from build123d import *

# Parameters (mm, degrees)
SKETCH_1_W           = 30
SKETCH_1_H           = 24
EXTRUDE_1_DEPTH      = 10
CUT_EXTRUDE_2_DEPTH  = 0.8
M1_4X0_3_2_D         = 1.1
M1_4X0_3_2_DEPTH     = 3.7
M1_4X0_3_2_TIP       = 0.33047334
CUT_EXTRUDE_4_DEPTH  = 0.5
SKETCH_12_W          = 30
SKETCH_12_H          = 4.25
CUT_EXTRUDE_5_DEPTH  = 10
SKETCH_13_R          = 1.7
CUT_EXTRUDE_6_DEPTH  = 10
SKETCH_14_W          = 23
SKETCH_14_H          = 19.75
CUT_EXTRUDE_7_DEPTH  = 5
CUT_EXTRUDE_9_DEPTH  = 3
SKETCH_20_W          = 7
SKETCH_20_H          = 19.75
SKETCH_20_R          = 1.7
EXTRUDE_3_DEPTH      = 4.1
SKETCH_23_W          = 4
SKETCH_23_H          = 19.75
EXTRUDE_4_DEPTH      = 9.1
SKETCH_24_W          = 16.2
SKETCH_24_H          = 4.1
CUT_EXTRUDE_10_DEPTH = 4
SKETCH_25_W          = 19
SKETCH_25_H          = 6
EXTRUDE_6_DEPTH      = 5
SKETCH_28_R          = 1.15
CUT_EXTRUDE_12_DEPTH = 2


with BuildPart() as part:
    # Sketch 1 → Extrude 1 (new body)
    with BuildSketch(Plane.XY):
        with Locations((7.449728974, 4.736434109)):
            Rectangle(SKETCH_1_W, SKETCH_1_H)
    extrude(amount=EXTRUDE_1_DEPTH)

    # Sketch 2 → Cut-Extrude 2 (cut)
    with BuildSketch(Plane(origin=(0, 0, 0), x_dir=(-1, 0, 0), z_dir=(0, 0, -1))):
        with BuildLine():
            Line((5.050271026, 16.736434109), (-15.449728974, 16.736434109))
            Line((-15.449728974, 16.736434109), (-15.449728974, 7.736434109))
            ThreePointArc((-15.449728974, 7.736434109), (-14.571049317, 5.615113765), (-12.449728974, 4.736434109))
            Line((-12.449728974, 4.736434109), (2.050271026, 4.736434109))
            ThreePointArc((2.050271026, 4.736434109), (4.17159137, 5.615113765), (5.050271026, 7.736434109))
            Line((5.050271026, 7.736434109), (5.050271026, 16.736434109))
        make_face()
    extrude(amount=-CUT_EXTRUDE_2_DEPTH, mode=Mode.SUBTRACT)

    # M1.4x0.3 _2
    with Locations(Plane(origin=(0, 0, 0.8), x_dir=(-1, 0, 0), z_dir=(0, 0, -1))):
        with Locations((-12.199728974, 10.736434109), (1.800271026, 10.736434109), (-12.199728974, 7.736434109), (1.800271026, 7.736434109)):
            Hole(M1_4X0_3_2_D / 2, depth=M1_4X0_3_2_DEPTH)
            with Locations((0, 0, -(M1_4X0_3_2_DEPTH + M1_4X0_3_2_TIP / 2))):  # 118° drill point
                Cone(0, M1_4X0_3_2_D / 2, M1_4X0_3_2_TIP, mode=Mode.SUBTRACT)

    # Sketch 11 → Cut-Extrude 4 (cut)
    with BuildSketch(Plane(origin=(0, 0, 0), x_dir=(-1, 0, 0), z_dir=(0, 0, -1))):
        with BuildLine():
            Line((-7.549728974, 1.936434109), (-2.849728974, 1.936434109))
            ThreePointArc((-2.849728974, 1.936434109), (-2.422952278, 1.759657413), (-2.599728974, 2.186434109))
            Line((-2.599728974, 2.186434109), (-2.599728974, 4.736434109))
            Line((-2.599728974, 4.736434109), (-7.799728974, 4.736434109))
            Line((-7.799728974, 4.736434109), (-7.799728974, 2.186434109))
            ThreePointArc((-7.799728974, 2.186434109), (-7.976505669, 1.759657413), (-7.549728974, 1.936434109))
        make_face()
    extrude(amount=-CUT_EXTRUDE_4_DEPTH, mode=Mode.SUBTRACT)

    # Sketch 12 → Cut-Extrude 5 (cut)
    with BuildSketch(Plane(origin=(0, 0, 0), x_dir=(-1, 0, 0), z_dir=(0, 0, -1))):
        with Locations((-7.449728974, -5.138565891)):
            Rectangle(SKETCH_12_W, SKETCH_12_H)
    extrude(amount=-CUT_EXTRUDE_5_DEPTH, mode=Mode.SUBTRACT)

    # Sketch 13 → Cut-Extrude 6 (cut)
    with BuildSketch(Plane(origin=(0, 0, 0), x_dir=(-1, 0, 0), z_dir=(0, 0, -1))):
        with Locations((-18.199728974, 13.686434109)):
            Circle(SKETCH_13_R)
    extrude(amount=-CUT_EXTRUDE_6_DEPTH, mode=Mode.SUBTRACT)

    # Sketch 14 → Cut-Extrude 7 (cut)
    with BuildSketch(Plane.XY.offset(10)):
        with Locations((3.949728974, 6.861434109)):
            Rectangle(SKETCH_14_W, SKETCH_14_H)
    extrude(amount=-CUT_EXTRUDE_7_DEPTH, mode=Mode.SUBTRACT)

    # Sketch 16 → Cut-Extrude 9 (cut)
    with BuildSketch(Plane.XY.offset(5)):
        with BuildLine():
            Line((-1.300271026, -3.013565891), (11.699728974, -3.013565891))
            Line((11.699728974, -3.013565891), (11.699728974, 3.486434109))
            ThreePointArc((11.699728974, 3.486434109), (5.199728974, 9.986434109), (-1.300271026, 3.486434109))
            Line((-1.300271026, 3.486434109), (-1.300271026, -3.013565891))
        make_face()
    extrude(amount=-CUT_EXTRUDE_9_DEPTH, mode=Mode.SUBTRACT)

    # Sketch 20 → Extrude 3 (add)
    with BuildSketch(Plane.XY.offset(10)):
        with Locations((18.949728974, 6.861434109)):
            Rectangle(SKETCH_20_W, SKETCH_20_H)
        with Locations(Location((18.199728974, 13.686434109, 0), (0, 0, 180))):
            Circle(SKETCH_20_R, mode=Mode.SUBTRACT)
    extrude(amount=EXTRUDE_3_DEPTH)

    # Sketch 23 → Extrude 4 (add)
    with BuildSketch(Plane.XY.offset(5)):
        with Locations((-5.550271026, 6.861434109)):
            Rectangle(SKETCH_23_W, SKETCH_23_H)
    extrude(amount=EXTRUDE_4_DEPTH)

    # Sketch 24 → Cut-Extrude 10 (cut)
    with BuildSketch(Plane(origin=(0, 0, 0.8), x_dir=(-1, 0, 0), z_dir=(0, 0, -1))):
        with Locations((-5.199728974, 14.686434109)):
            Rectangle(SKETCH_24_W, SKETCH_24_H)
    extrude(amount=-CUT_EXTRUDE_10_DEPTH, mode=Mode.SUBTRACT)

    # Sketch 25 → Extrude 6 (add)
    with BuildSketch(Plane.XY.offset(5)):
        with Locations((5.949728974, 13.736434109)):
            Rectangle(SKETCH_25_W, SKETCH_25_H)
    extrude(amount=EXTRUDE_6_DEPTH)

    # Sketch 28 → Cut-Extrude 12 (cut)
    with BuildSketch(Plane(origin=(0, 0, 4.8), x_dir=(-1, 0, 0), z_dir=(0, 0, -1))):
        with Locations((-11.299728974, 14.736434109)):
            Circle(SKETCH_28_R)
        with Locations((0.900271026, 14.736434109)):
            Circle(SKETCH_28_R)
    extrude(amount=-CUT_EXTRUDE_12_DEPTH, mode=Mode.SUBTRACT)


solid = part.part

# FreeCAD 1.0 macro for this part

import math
import FreeCAD as App
import Part
import Sketcher
from FreeCAD import Vector


def add_polygon(sketch, points):
    """Adds a closed chain of lines whose ends are joined by coincident constraints."""
    first, n = sketch.GeometryCount, len(points)
    for a, b in zip(points, points[1:] + points[:1]):
        sketch.addGeometry(Part.LineSegment(App.Vector(*a, 0), App.Vector(*b, 0)), False)
    for i in range(n):
        sketch.addConstraint(Sketcher.Constraint("Coincident", first + i, 2, first + (i + 1) % n, 1))

doc = App.newDocument("Part")
params = doc.addObject("Spreadsheet::Sheet", "Params")
for row, (alias, value) in enumerate([
    ("sketch1_width", "30 mm"),
    ("sketch1_height", "24 mm"),
    ("pad1_length", "10 mm"),
    ("sketch2_radius", "3 mm"),
    ("sketch2_height", "9 mm"),
    ("sketch2_width", "20.5 mm"),
    ("pocket1_length", "0.8 mm"),
    ("sketch3_diameter", "1.1 mm"),
    ("hole_diameter", "1.1 mm"),
    ("hole_depth", "3.7 mm"),
    ("sketch4_radius", "0.25 mm"),
    ("sketch4_width", "4.7 mm"),
    ("sketch4_width2", "5.2 mm"),
    ("sketch4_height", "2.55 mm"),
    ("pocket2_length", "0.5 mm"),
    ("sketch5_width", "30 mm"),
    ("sketch5_height", "4.25 mm"),
    ("pocket3_length", "10 mm"),
    ("sketch6_diameter", "3.4 mm"),
    ("pocket4_length", "10 mm"),
    ("sketch7_width", "23 mm"),
    ("sketch7_height", "19.75 mm"),
    ("pocket5_length", "5 mm"),
    ("sketch8_radius", "6.5 mm"),
    ("sketch8_height", "6.5 mm"),
    ("pocket6_length", "3 mm"),
    ("sketch9_diameter", "3.4 mm"),
    ("sketch9_width", "7 mm"),
    ("sketch9_height", "19.75 mm"),
    ("pad2_length", "4.1 mm"),
    ("sketch10_width", "4 mm"),
    ("sketch10_height", "19.75 mm"),
    ("pad3_length", "9.1 mm"),
    ("sketch11_width", "16.2 mm"),
    ("sketch11_height", "4.1 mm"),
    ("pocket7_length", "4 mm"),
    ("sketch12_width", "19 mm"),
    ("sketch12_height", "6 mm"),
    ("pad4_length", "5 mm"),
    ("sketch13_diameter", "2.3 mm"),
    ("pocket8_length", "2 mm"),
], start=1):
    params.set(f"A{row}", alias)
    params.set(f"B{row}", "=" + value)
    params.setAlias(f"B{row}", alias)

body = doc.addObject("PartDesign::Body", "Body")

sketch1 = body.newObject("Sketcher::SketchObject", "Sketch")
sketch1.AttachmentSupport = (doc.getObject("XY_Plane"), [""])
sketch1.MapMode = "FlatFace"
add_polygon(sketch1, [(-8, 17), (-8, -7), (22, -7), (22, 17)])
sketch1.addConstraint([
    Sketcher.Constraint("Vertical", 0),
    Sketcher.Constraint("Horizontal", 1),
    Sketcher.Constraint("Vertical", 2),
    Sketcher.Constraint("Horizontal", 3),
    Sketcher.Constraint("DistanceX", 1, 1, 1, 2, 30.0),
    Sketcher.Constraint("DistanceY", 0, 2, 0, 1, 24.0),
    Sketcher.Constraint("DistanceX", 0, 2, -1, 1, 7.550271),
    Sketcher.Constraint("DistanceY", 0, 2, -1, 1, 7.263566),
])
sketch1.setExpression("Constraints[8]", "Params.sketch1_width")
sketch1.setExpression("Constraints[9]", "Params.sketch1_height")
pad1 = body.newObject("PartDesign::Pad", "Pad")
pad1.Profile = sketch1
pad1.setExpression("Length", "Params.pad1_length")

sketch2 = body.newObject("Sketcher::SketchObject", "Sketch001")
sketch2.AttachmentSupport = (doc.getObject("XY_Plane"), [""])
sketch2.MapMode = "FlatFace"
sketch2.addGeometry([
    Part.LineSegment(Vector(-5.1, 16.7, 0), Vector(15.4, 16.7, 0)),
    Part.LineSegment(Vector(15.4, 16.7, 0), Vector(15.4, 7.7, 0)),
    Part.ArcOfCircle(Part.Circle(Vector(12.4, 7.7, 0), Vector(0, 0, 1), 3), math.radians(-90), math.radians(0)),
    Part.LineSegment(Vector(12.4, 4.7, 0), Vector(-2.1, 4.7, 0)),
    Part.ArcOfCircle(Part.Circle(Vector(-2.1, 7.7, 0), Vector(0, 0, 1), 3), math.radians(180), math.radians(270)),
    Part.LineSegment(Vector(-5.1, 7.7, 0), Vector(-5.1, 16.7, 0)),
], False)
sketch2.addConstraint([
    Sketcher.Constraint("Coincident", 0, 2, 1, 1),
    Sketcher.Constraint("Tangent", 1, 2, 2, 2),
    Sketcher.Constraint("Tangent", 2, 1, 3, 1),
    Sketcher.Constraint("Tangent", 3, 2, 4, 2),
    Sketcher.Constraint("Tangent", 4, 1, 5, 1),
    Sketcher.Constraint("Coincident", 5, 2, 0, 1),
    Sketcher.Constraint("Horizontal", 0),
    Sketcher.Constraint("Vertical", 1),
    Sketcher.Constraint("Horizontal", 3),
    Sketcher.Constraint("Vertical", 5),
    Sketcher.Constraint("Equal", 2, 4),
    Sketcher.Constraint("Radius", 2, 3.0),
    Sketcher.Constraint("DistanceY", 1, 2, 1, 1, 9.0),
    Sketcher.Constraint("DistanceX", 0, 1, 0, 2, 20.5),
    Sketcher.Constraint("DistanceX", -1, 1, 2, 3, 12.449729),
    Sketcher.Constraint("DistanceY", -1, 1, 2, 3, 7.736434),
])
sketch2.setExpression("Constraints[11]", "Params.sketch2_radius")
sketch2.setExpression("Constraints[12]", "Params.sketch2_height")
sketch2.setExpression("Constraints[13]", "Params.sketch2_width")
pocket1 = body.newObject("PartDesign::Pocket", "Pocket")
pocket1.Profile = sketch2
pocket1.setExpression("Length", "Params.pocket1_length")
pocket1.Reversed = True

sketch3 = body.newObject("Sketcher::SketchObject", "Sketch002")
sketch3.AttachmentSupport = (doc.getObject("XY_Plane"), [""])
sketch3.MapMode = "FlatFace"
sketch3.AttachmentOffset = App.Placement(Vector(0, 0, 0.8), App.Rotation())
sketch3.addGeometry([
    Part.Circle(Vector(12.2, 10.7, 0), Vector(0, 0, 1), 0.6),
    Part.Circle(Vector(-1.8, 10.7, 0), Vector(0, 0, 1), 0.6),
    Part.Circle(Vector(12.2, 7.7, 0), Vector(0, 0, 1), 0.6),
    Part.Circle(Vector(-1.8, 7.7, 0), Vector(0, 0, 1), 0.6),
], False)
sketch3.addConstraint([
    Sketcher.Constraint("Equal", 0, 1),
    Sketcher.Constraint("Equal", 1, 2),
    Sketcher.Constraint("Equal", 2, 3),
    Sketcher.Constraint("Horizontal", 0, 3, 1, 3),
    Sketcher.Constraint("Horizontal", 2, 3, 3, 3),
    Sketcher.Constraint("Vertical", 0, 3, 2, 3),
    Sketcher.Constraint("Vertical", 1, 3, 3, 3),
    Sketcher.Constraint("Diameter", 0, 1.1),
    Sketcher.Constraint("DistanceX", 1, 3, 0, 3, 14.0),
    Sketcher.Constraint("DistanceY", 2, 3, 0, 3, 3.0),
    Sketcher.Constraint("DistanceX", -1, 1, 0, 3, 12.199729),
    Sketcher.Constraint("DistanceY", -1, 1, 0, 3, 10.736434),
])
sketch3.setExpression("Constraints[7]", "Params.sketch3_diameter")
doc.recompute()
hole = body.newObject("PartDesign::Hole", "Hole")
hole.Profile = sketch3
hole.ThreadType = "None"
hole.setExpression("Diameter", "Params.hole_diameter")
hole.DepthType = "Dimension"
hole.setExpression("Depth", "Params.hole_depth")
hole.DrillPoint = "Angled"
hole.DrillPointAngle = 118
hole.Reversed = True

sketch4 = body.newObject("Sketcher::SketchObject", "Sketch003")
sketch4.AttachmentSupport = (doc.getObject("XY_Plane"), [""])
sketch4.MapMode = "FlatFace"
sketch4.addGeometry([
    Part.LineSegment(Vector(7.55, 1.94, 0), Vector(2.85, 1.94, 0)),
    Part.ArcOfCircle(Part.Circle(Vector(2.6, 1.94, 0), Vector(0, 0, 1), 0.25), math.radians(90), math.radians(360)),
    Part.LineSegment(Vector(2.6, 2.19, 0), Vector(2.6, 4.74, 0)),
    Part.LineSegment(Vector(2.6, 4.74, 0), Vector(7.8, 4.74, 0)),
    Part.LineSegment(Vector(7.8, 4.74, 0), Vector(7.8, 2.19, 0)),
    Part.ArcOfCircle(Part.Circle(Vector(7.8, 1.94, 0), Vector(0, 0, 1), 0.25), math.radians(180), math.radians(450)),
], False)
sketch4.addConstraint([
    Sketcher.Constraint("Coincident", 0, 2, 1, 2),
    Sketcher.Constraint("Coincident", 1, 1, 2, 1),
    Sketcher.Constraint("Coincident", 2, 2, 3, 1),
    Sketcher.Constraint("Coincident", 3, 2, 4, 1),
    Sketcher.Constraint("Coincident", 4, 2, 5, 2),
    Sketcher.Constraint("Coincident", 5, 1, 0, 1),
    Sketcher.Constraint("Horizontal", 0),
    Sketcher.Constraint("Vertical", 2),
    Sketcher.Constraint("Horizontal", 3),
    Sketcher.Constraint("Vertical", 4),
    Sketcher.Constraint("Equal", 1, 5),
    Sketcher.Constraint("Horizontal", 1, 3, 5, 3),
    Sketcher.Constraint("Horizontal", 5, 3, 0, 2),
    Sketcher.Constraint("Vertical", 5, 3, 3, 2),
    Sketcher.Constraint("Radius", 1, 0.25),
    Sketcher.Constraint("DistanceX", 0, 2, 0, 1, 4.7),
    Sketcher.Constraint("DistanceX", 3, 1, 3, 2, 5.2),
    Sketcher.Constraint("DistanceY", 2, 1, 2, 2, 2.55),
    Sketcher.Constraint("DistanceX", -1, 1, 1, 3, 2.599729),
    Sketcher.Constraint("DistanceY", -1, 1, 1, 3, 1.936434),
])
sketch4.setExpression("Constraints[14]", "Params.sketch4_radius")
sketch4.setExpression("Constraints[15]", "Params.sketch4_width")
sketch4.setExpression("Constraints[16]", "Params.sketch4_width2")
sketch4.setExpression("Constraints[17]", "Params.sketch4_height")
pocket2 = body.newObject("PartDesign::Pocket", "Pocket001")
pocket2.Profile = sketch4
pocket2.setExpression("Length", "Params.pocket2_length")
pocket2.Reversed = True

sketch5 = body.newObject("Sketcher::SketchObject", "Sketch004")
sketch5.AttachmentSupport = (doc.getObject("XY_Plane"), [""])
sketch5.MapMode = "FlatFace"
add_polygon(sketch5, [(22.4, -3), (22.4, -7.3), (-7.6, -7.3), (-7.6, -3)])
sketch5.addConstraint([
    Sketcher.Constraint("Vertical", 0),
    Sketcher.Constraint("Horizontal", 1),
    Sketcher.Constraint("Vertical", 2),
    Sketcher.Constraint("Horizontal", 3),
    Sketcher.Constraint("DistanceX", 1, 2, 1, 1, 30.0),
    Sketcher.Constraint("DistanceY", 0, 2, 0, 1, 4.25),
    Sketcher.Constraint("DistanceX", -1, 1, 0, 2, 22.449729),
    Sketcher.Constraint("DistanceY", 0, 2, -1, 1, 7.263566),
])
sketch5.setExpression("Constraints[8]", "Params.sketch5_width")
sketch5.setExpression("Constraints[9]", "Params.sketch5_height")
pocket3 = body.newObject("PartDesign::Pocket", "Pocket002")
pocket3.Profile = sketch5
pocket3.setExpression("Length", "Params.pocket3_length")
pocket3.Reversed = True

sketch6 = body.newObject("Sketcher::SketchObject", "Sketch005")
sketch6.AttachmentSupport = (doc.getObject("XY_Plane"), [""])
sketch6.MapMode = "FlatFace"
sketch6.addGeometry(Part.Circle(Vector(18.2, 13.7, 0), Vector(0, 0, 1), 1.7), False)
sketch6.addConstraint([
    Sketcher.Constraint("Diameter", 0, 3.4),
    Sketcher.Constraint("DistanceX", -1, 1, 0, 3, 18.199729),
    Sketcher.Constraint("DistanceY", -1, 1, 0, 3, 13.686434),
])
sketch6.setExpression("Constraints[0]", "Params.sketch6_diameter")
pocket4 = body.newObject("PartDesign::Pocket", "Pocket003")
pocket4.Profile = sketch6
pocket4.setExpression("Length", "Params.pocket4_length")
pocket4.Reversed = True

sketch7 = body.newObject("Sketcher::SketchObject", "Sketch006")
sketch7.AttachmentSupport = (doc.getObject("XY_Plane"), [""])
sketch7.MapMode = "FlatFace"
sketch7.AttachmentOffset = App.Placement(Vector(0, 0, 10), App.Rotation())
add_polygon(sketch7, [(-8, 17), (-8, -3), (15, -3), (15, 17)])
sketch7.addConstraint([
    Sketcher.Constraint("Vertical", 0),
    Sketcher.Constraint("Horizontal", 1),
    Sketcher.Constraint("Vertical", 2),
    Sketcher.Constraint("Horizontal", 3),
    Sketcher.Constraint("DistanceX", 1, 1, 1, 2, 23.0),
    Sketcher.Constraint("DistanceY", 0, 2, 0, 1, 19.75),
    Sketcher.Constraint("DistanceX", 0, 2, -1, 1, 7.550271),
    Sketcher.Constraint("DistanceY", 0, 2, -1, 1, 3.013566),
])
sketch7.setExpression("Constraints[8]", "Params.sketch7_width")
sketch7.setExpression("Constraints[9]", "Params.sketch7_height")
pocket5 = body.newObject("PartDesign::Pocket", "Pocket004")
pocket5.Profile = sketch7
pocket5.setExpression("Length", "Params.pocket5_length")

sketch8 = body.newObject("Sketcher::SketchObject", "Sketch007")
sketch8.AttachmentSupport = (doc.getObject("XY_Plane"), [""])
sketch8.MapMode = "FlatFace"
sketch8.AttachmentOffset = App.Placement(Vector(0, 0, 5), App.Rotation())
sketch8.addGeometry([
    Part.LineSegment(Vector(-1, -3, 0), Vector(12, -3, 0)),
    Part.LineSegment(Vector(12, -3, 0), Vector(12, 3, 0)),
    Part.ArcOfCircle(Part.Circle(Vector(5, 3, 0), Vector(0, 0, 1), 6), math.radians(0), math.radians(180)),
    Part.LineSegment(Vector(-1, 3, 0), Vector(-1, -3, 0)),
], False)
sketch8.addConstraint([
    Sketcher.Constraint("Coincident", 0, 2, 1, 1),
    Sketcher.Constraint("Tangent", 1, 2, 2, 1),
    Sketcher.Constraint("Tangent", 2, 2, 3, 1),
    Sketcher.Constraint("Coincident", 3, 2, 0, 1),
    Sketcher.Constraint("Horizontal", 0),
    Sketcher.Constraint("Vertical", 1),
    Sketcher.Constraint("Vertical", 3),
    Sketcher.Constraint("Radius", 2, 6.5),
    Sketcher.Constraint("DistanceY", 1, 1, 1, 2, 6.5),
    Sketcher.Constraint("DistanceX", -1, 1, 2, 3, 5.199729),
    Sketcher.Constraint("DistanceY", -1, 1, 2, 3, 3.486434),
])
sketch8.setExpression("Constraints[7]", "Params.sketch8_radius")
sketch8.setExpression("Constraints[8]", "Params.sketch8_height")
pocket6 = body.newObject("PartDesign::Pocket", "Pocket005")
pocket6.Profile = sketch8
pocket6.setExpression("Length", "Params.pocket6_length")

sketch9 = body.newObject("Sketcher::SketchObject", "Sketch008")
sketch9.AttachmentSupport = (doc.getObject("XY_Plane"), [""])
sketch9.MapMode = "FlatFace"
sketch9.AttachmentOffset = App.Placement(Vector(0, 0, 10), App.Rotation())
add_polygon(sketch9, [(15.4, 16.7), (15.4, -3), (22.4, -3), (22.4, 16.7)])
sketch9.addGeometry(Part.Circle(Vector(18.2, 13.7, 0), Vector(0, 0, 1), 1.7), False)
sketch9.addConstraint([
    Sketcher.Constraint("Vertical", 0),
    Sketcher.Constraint("Horizontal", 1),
    Sketcher.Constraint("Vertical", 2),
    Sketcher.Constraint("Horizontal", 3),
    Sketcher.Constraint("Diameter", 4, 3.4),
    Sketcher.Constraint("DistanceX", 1, 1, 1, 2, 7.0),
    Sketcher.Constraint("DistanceY", 0, 2, 0, 1, 19.75),
    Sketcher.Constraint("DistanceY", 0, 2, 4, 3, 16.7),
    Sketcher.Constraint("DistanceX", 0, 2, 4, 3, 2.75),
    Sketcher.Constraint("DistanceX", -1, 1, 4, 3, 18.199729),
    Sketcher.Constraint("DistanceY", -1, 1, 4, 3, 13.686434),
])
sketch9.setExpression("Constraints[8]", "Params.sketch9_diameter")
sketch9.setExpression("Constraints[9]", "Params.sketch9_width")
sketch9.setExpression("Constraints[10]", "Params.sketch9_height")
pad2 = body.newObject("PartDesign::Pad", "Pad001")
pad2.Profile = sketch9
pad2.setExpression("Length", "Params.pad2_length")

sketch10 = body.newObject("Sketcher::SketchObject", "Sketch009")
sketch10.AttachmentSupport = (doc.getObject("XY_Plane"), [""])
sketch10.MapMode = "FlatFace"
sketch10.AttachmentOffset = App.Placement(Vector(0, 0, 5), App.Rotation())
add_polygon(sketch10, [(-7.6, 16.7), (-7.6, -3), (-3.6, -3), (-3.6, 16.7)])
sketch10.addConstraint([
    Sketcher.Constraint("Vertical", 0),
    Sketcher.Constraint("Horizontal", 1),
    Sketcher.Constraint("Vertical", 2),
    Sketcher.Constraint("Horizontal", 3),
    Sketcher.Constraint("DistanceX", 1, 1, 1, 2, 4.0),
    Sketcher.Constraint("DistanceY", 0, 2, 0, 1, 19.75),
    Sketcher.Constraint("DistanceX", 0, 2, -1, 1, 7.550271),
    Sketcher.Constraint("DistanceY", 0, 2, -1, 1, 3.013566),
])
sketch10.setExpression("Constraints[8]", "Params.sketch10_width")
sketch10.setExpression("Constraints[9]", "Params.sketch10_height")
pad3 = body.newObject("PartDesign::Pad", "Pad002")
pad3.Profile = sketch10
pad3.setExpression("Length", "Params.pad3_length")

sketch11 = body.newObject("Sketcher::SketchObject", "Sketch010")
sketch11.AttachmentSupport = (doc.getObject("XY_Plane"), [""])
sketch11.MapMode = "FlatFace"
sketch11.AttachmentOffset = App.Placement(Vector(0, 0, 0.8), App.Rotation())
add_polygon(sketch11, [(13.3, 16.7), (13.3, 12.6), (-2.9, 12.6), (-2.9, 16.7)])
sketch11.addConstraint([
    Sketcher.Constraint("Vertical", 0),
    Sketcher.Constraint("Horizontal", 1),
    Sketcher.Constraint("Vertical", 2),
    Sketcher.Constraint("Horizontal", 3),
    Sketcher.Constraint("DistanceX", 1, 2, 1, 1, 16.2),
    Sketcher.Constraint("DistanceY", 0, 2, 0, 1, 4.1),
    Sketcher.Constraint("DistanceX", -1, 1, 0, 2, 13.299729),
    Sketcher.Constraint("DistanceY", -1, 1, 0, 2, 12.636434),
])
sketch11.setExpression("Constraints[8]", "Params.sketch11_width")
sketch11.setExpression("Constraints[9]", "Params.sketch11_height")
pocket7 = body.newObject("PartDesign::Pocket", "Pocket006")
pocket7.Profile = sketch11
pocket7.setExpression("Length", "Params.pocket7_length")
pocket7.Reversed = True

sketch12 = body.newObject("Sketcher::SketchObject", "Sketch011")
sketch12.AttachmentSupport = (doc.getObject("XY_Plane"), [""])
sketch12.MapMode = "FlatFace"
sketch12.AttachmentOffset = App.Placement(Vector(0, 0, 5), App.Rotation())
add_polygon(sketch12, [(-4, 17), (-4, 11), (15, 11), (15, 17)])
sketch12.addConstraint([
    Sketcher.Constraint("Vertical", 0),
    Sketcher.Constraint("Horizontal", 1),
    Sketcher.Constraint("Vertical", 2),
    Sketcher.Constraint("Horizontal", 3),
    Sketcher.Constraint("DistanceX", 1, 1, 1, 2, 19.0),
    Sketcher.Constraint("DistanceY", 0, 2, 0, 1, 6.0),
    Sketcher.Constraint("DistanceX", 0, 2, -1, 1, 3.550271),
    Sketcher.Constraint("DistanceY", -1, 1, 0, 2, 10.736434),
])
sketch12.setExpression("Constraints[8]", "Params.sketch12_width")
sketch12.setExpression("Constraints[9]", "Params.sketch12_height")
pad4 = body.newObject("PartDesign::Pad", "Pad003")
pad4.Profile = sketch12
pad4.setExpression("Length", "Params.pad4_length")

sketch13 = body.newObject("Sketcher::SketchObject", "Sketch012")
sketch13.AttachmentSupport = (doc.getObject("XY_Plane"), [""])
sketch13.MapMode = "FlatFace"
sketch13.AttachmentOffset = App.Placement(Vector(0, 0, 4.8), App.Rotation())
sketch13.addGeometry([
    Part.Circle(Vector(11.3, 14.7, 0), Vector(0, 0, 1), 1.1),
    Part.Circle(Vector(-0.9, 14.7, 0), Vector(0, 0, 1), 1.1),
], False)
sketch13.addConstraint([
    Sketcher.Constraint("Equal", 0, 1),
    Sketcher.Constraint("Horizontal", 0, 3, 1, 3),
    Sketcher.Constraint("Diameter", 0, 2.3),
    Sketcher.Constraint("DistanceX", 1, 3, 0, 3, 12.2),
    Sketcher.Constraint("DistanceX", -1, 1, 0, 3, 11.299729),
    Sketcher.Constraint("DistanceY", -1, 1, 0, 3, 14.736434),
])
sketch13.setExpression("Constraints[2]", "Params.sketch13_diameter")
pocket8 = body.newObject("PartDesign::Pocket", "Pocket007")
pocket8.Profile = sketch13
pocket8.setExpression("Length", "Params.pocket8_length")
pocket8.Reversed = True

doc.recompute()
